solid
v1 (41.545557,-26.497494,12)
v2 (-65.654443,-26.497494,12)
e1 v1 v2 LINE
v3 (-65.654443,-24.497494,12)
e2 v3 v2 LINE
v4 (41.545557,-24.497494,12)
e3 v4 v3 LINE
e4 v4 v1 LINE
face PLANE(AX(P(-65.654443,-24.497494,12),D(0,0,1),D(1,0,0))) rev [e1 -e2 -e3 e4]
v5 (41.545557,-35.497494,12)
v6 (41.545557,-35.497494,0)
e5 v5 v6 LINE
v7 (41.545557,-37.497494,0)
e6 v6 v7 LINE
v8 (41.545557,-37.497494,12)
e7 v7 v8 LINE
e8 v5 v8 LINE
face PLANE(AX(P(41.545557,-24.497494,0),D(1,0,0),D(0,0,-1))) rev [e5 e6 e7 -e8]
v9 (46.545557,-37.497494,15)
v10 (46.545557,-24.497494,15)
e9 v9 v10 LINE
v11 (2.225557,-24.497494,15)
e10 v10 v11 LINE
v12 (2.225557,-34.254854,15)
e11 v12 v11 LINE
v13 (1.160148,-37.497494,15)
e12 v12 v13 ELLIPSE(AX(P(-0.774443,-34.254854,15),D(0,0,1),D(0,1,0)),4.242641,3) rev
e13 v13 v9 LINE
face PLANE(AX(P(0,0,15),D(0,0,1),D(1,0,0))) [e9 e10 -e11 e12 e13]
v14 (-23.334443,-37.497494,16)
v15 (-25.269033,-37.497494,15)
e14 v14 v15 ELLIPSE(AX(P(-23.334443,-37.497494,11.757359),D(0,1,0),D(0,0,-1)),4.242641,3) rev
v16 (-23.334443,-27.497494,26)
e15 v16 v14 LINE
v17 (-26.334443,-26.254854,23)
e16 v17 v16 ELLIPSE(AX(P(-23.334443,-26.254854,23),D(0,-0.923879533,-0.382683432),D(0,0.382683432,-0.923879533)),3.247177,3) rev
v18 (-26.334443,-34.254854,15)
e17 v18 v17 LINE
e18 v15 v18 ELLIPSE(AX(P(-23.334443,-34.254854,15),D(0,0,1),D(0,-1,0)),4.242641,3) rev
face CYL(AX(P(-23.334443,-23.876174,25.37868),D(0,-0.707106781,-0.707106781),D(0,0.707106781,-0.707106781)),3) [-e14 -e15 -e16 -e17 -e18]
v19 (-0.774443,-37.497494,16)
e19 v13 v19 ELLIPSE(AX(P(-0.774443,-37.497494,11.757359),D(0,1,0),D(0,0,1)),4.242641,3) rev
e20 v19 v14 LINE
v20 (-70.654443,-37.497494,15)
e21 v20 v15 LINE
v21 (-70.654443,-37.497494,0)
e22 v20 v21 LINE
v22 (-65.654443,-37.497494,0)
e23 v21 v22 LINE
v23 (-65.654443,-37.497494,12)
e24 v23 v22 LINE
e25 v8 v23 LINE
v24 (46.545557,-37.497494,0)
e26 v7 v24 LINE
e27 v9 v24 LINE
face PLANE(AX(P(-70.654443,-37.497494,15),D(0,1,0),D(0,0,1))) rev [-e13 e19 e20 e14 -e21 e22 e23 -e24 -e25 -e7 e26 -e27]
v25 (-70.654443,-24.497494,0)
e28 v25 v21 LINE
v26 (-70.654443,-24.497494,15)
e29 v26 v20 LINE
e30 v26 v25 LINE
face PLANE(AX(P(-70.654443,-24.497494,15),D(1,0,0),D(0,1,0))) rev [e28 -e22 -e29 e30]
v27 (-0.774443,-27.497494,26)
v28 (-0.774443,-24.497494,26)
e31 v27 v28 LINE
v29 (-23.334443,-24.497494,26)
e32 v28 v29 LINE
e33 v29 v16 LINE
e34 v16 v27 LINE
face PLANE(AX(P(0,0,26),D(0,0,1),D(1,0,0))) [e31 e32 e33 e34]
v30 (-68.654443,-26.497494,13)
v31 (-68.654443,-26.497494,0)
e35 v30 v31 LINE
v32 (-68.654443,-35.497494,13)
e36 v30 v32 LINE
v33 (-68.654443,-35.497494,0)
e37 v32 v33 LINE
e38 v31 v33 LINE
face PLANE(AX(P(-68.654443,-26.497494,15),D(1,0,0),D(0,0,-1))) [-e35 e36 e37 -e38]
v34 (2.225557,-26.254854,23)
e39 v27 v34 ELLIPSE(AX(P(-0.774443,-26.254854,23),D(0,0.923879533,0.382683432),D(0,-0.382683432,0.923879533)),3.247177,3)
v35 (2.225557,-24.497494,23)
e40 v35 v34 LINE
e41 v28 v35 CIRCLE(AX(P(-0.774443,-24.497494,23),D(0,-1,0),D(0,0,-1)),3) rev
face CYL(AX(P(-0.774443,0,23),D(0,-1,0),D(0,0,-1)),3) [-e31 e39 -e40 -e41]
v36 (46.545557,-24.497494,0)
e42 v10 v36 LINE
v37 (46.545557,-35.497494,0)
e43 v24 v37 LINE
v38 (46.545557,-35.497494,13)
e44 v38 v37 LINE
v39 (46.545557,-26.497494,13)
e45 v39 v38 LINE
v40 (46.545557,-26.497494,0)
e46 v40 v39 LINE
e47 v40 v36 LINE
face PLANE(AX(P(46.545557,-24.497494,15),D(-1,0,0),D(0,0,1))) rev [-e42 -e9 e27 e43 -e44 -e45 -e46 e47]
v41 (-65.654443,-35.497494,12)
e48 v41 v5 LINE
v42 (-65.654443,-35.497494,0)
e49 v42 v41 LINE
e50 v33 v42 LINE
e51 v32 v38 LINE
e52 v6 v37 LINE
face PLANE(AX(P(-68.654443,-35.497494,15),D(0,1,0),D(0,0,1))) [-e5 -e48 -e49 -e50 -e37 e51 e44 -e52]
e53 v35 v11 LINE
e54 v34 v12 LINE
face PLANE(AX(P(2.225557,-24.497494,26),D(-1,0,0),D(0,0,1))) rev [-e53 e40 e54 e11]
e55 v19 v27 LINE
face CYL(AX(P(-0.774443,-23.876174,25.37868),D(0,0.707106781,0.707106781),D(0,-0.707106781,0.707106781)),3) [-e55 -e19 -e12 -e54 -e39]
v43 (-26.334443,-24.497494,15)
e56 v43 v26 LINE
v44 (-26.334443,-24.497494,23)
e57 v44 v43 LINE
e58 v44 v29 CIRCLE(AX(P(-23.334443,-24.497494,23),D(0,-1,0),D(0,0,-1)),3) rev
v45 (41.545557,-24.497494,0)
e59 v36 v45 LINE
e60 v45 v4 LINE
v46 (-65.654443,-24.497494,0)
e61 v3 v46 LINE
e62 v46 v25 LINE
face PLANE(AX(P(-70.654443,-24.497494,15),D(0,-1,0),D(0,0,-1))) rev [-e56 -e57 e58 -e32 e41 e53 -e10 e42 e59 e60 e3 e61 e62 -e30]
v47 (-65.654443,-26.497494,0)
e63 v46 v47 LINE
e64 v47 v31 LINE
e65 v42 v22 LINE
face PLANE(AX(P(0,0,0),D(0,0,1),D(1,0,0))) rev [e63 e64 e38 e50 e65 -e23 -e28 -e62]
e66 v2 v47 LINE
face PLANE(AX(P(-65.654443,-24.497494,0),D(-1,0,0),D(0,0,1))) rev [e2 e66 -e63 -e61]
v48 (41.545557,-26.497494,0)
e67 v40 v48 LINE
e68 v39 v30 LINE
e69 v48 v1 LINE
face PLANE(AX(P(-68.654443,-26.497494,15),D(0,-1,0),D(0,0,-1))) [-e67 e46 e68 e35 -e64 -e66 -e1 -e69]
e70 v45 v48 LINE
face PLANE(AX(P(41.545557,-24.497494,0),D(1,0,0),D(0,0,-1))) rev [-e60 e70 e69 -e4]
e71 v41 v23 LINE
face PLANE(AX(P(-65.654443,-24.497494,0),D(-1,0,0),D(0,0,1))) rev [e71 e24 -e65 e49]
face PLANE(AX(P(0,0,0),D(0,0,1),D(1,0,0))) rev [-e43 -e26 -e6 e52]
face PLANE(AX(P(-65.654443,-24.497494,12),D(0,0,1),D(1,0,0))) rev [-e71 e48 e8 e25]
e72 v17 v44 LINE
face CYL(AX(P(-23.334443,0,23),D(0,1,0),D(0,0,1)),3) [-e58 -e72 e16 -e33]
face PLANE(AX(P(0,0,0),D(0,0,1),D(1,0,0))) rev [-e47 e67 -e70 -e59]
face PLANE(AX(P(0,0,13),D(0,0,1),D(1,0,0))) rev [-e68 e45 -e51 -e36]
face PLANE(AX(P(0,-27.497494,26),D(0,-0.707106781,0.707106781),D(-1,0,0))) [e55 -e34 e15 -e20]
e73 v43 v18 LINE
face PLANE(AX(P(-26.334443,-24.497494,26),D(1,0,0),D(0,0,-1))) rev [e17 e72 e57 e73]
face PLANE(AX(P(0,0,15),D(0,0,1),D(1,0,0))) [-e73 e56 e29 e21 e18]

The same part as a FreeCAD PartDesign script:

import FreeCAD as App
import Part
import Sketcher


def edges_at(feature, points):
    """Names of the edges that pass closest to the given points."""
    edges = feature.Shape.Edges
    near = lambda p: min(range(len(edges)), key=lambda i: edges[i].distToShape(Part.Vertex(*p))[0])
    return sorted({f"Edge{near(p) + 1}" for p in points})


def add_polygon(sketch, points):
    """Adds a closed chain of lines whose ends are joined by coincident constraints."""
    first, n = sketch.GeometryCount, len(points)
    for a, b in zip(points, points[1:] + points[:1]):
        sketch.addGeometry(Part.LineSegment(App.Vector(*a, 0), App.Vector(*b, 0)), False)
    for i in range(n):
        sketch.addConstraint(Sketcher.Constraint("Coincident", first + i, 2, first + (i + 1) % n, 1))

doc = App.newDocument("Part")
body = doc.addObject("PartDesign::Body", "Body")

# Sketch on XY plane
sketch1 = body.newObject("Sketcher::SketchObject", "Sketch")
sketch1.AttachmentSupport = (doc.getObject("XY_Plane"), [""])
sketch1.MapMode = "FlatFace"
add_polygon(sketch1, [(-70.654443, -24.497494), (-70.654443, -37.497494), (46.545557, -37.497494), (46.545557, -24.497494)])  # lines 0-3
add_polygon(sketch1, [(44.545557, -35.497494), (-68.654443, -35.497494), (-68.654443, -26.497494), (44.545557, -26.497494)])  # lines 4-7
sketch1.addConstraint(Sketcher.Constraint("Vertical", 0))
sketch1.addConstraint(Sketcher.Constraint("Horizontal", 1))
sketch1.addConstraint(Sketcher.Constraint("Vertical", 2))
sketch1.addConstraint(Sketcher.Constraint("Horizontal", 3))
sketch1.addConstraint(Sketcher.Constraint("Horizontal", 4))
sketch1.addConstraint(Sketcher.Constraint("Vertical", 5))
sketch1.addConstraint(Sketcher.Constraint("Horizontal", 6))
sketch1.addConstraint(Sketcher.Constraint("Vertical", 7))
sketch1.addConstraint(Sketcher.Constraint("DistanceY", 0, 2, 0, 1, 13.0))
sketch1.addConstraint(Sketcher.Constraint("DistanceY", 5, 1, 5, 2, 9.0))
sketch1.addConstraint(Sketcher.Constraint("DistanceX", 1, 1, 1, 2, 117.2))
sketch1.addConstraint(Sketcher.Constraint("DistanceX", 4, 2, 4, 1, 113.2))
sketch1.addConstraint(Sketcher.Constraint("DistanceX", 0, 2, 4, 2, 2.0))
sketch1.addConstraint(Sketcher.Constraint("DistanceY", 0, 2, 4, 2, 2.0))
sketch1.addConstraint(Sketcher.Constraint("DistanceX", 0, 2, -1, 1, 70.654443))
sketch1.addConstraint(Sketcher.Constraint("DistanceY", 0, 2, -1, 1, 37.497494))
pad1 = body.newObject("PartDesign::Pad", "Pad")
pad1.Profile = sketch1
pad1.Length = 15

# Sketch on XY plane
sketch2 = body.newObject("Sketcher::SketchObject", "Sketch001")
sketch2.AttachmentSupport = (doc.getObject("XY_Plane"), [""])
sketch2.MapMode = "FlatFace"
sketch2.AttachmentOffset = App.Placement(App.Vector(0, 0, 15), App.Rotation())
add_polygon(sketch2, [(-70.654443, -24.497494), (-70.654443, -37.497494), (46.545557, -37.497494), (46.545557, -24.497494)])  # lines 0-3
sketch2.addConstraint(Sketcher.Constraint("Vertical", 0))
sketch2.addConstraint(Sketcher.Constraint("Horizontal", 1))
sketch2.addConstraint(Sketcher.Constraint("Vertical", 2))
sketch2.addConstraint(Sketcher.Constraint("Horizontal", 3))
sketch2.addConstraint(Sketcher.Constraint("DistanceY", 0, 2, 0, 1, 13.0))
sketch2.addConstraint(Sketcher.Constraint("DistanceX", 1, 1, 1, 2, 117.2))
sketch2.addConstraint(Sketcher.Constraint("DistanceX", 0, 2, -1, 1, 70.654443))
sketch2.addConstraint(Sketcher.Constraint("DistanceY", 0, 2, -1, 1, 37.497494))
pad2 = body.newObject("PartDesign::Pad", "Pad001")
pad2.Profile = sketch2
pad2.Length = 2
pad2.Reversed = True

# Sketch on XZ plane
sketch3 = body.newObject("Sketcher::SketchObject", "Sketch002")
sketch3.AttachmentSupport = (doc.getObject("XZ_Plane"), [""])
sketch3.MapMode = "FlatFace"
sketch3.AttachmentOffset = App.Placement(App.Vector(0, 0, 37.497494), App.Rotation())
add_polygon(sketch3, [(-65.654443, 12), (-65.654443, 0), (41.545557, 0), (41.545557, 12)])  # lines 0-3
sketch3.addConstraint(Sketcher.Constraint("Vertical", 0))
sketch3.addConstraint(Sketcher.Constraint("Horizontal", 1))
sketch3.addConstraint(Sketcher.Constraint("Vertical", 2))
sketch3.addConstraint(Sketcher.Constraint("Horizontal", 3))
sketch3.addConstraint(Sketcher.Constraint("PointOnObject", 0, 2, -1))
sketch3.addConstraint(Sketcher.Constraint("DistanceY", 0, 2, 0, 1, 12.0))
sketch3.addConstraint(Sketcher.Constraint("DistanceX", 1, 1, 1, 2, 107.2))
sketch3.addConstraint(Sketcher.Constraint("DistanceX", 0, 2, -1, 1, 65.654443))
pocket1 = body.newObject("PartDesign::Pocket", "Pocket")
pocket1.Profile = sketch3
pocket1.Type = "ThroughAll"

# Sketch on YZ plane
sketch4 = body.newObject("Sketcher::SketchObject", "Sketch003")
sketch4.AttachmentSupport = (doc.getObject("YZ_Plane"), [""])
sketch4.MapMode = "FlatFace"
sketch4.AttachmentOffset = App.Placement(App.Vector(0, 0, 46.545557), App.Rotation())
add_polygon(sketch4, [(-26.497494, 13), (-35.497494, 13), (-35.497494, 0), (-26.497494, 0)])  # lines 0-3
sketch4.addConstraint(Sketcher.Constraint("Horizontal", 0))
sketch4.addConstraint(Sketcher.Constraint("Vertical", 1))
sketch4.addConstraint(Sketcher.Constraint("Horizontal", 2))
sketch4.addConstraint(Sketcher.Constraint("Vertical", 3))
sketch4.addConstraint(Sketcher.Constraint("PointOnObject", 1, 2, -1))
sketch4.addConstraint(Sketcher.Constraint("DistanceX", 0, 2, 0, 1, 9.0))
sketch4.addConstraint(Sketcher.Constraint("DistanceY", 1, 2, 1, 1, 13.0))
sketch4.addConstraint(Sketcher.Constraint("DistanceX", 0, 2, -1, 1, 35.497494))
pocket2 = body.newObject("PartDesign::Pocket", "Pocket001")
pocket2.Profile = sketch4
pocket2.Type = "UpToFirst"

# Sketch on XY plane
sketch5 = body.newObject("Sketcher::SketchObject", "Sketch004")
sketch5.AttachmentSupport = (doc.getObject("XY_Plane"), [""])
sketch5.MapMode = "FlatFace"
sketch5.AttachmentOffset = App.Placement(App.Vector(0, 0, 15), App.Rotation())
add_polygon(sketch5, [(-26.334443, -24.497494), (-26.334443, -37.497494), (2.225557, -37.497494), (2.225557, -24.497494)])  # lines 0-3
sketch5.addConstraint(Sketcher.Constraint("Vertical", 0))
sketch5.addConstraint(Sketcher.Constraint("Horizontal", 1))
sketch5.addConstraint(Sketcher.Constraint("Vertical", 2))
sketch5.addConstraint(Sketcher.Constraint("Horizontal", 3))
sketch5.addConstraint(Sketcher.Constraint("DistanceY", 0, 2, 0, 1, 13.0))
sketch5.addConstraint(Sketcher.Constraint("DistanceX", 1, 1, 1, 2, 28.56))
sketch5.addConstraint(Sketcher.Constraint("DistanceX", 0, 2, -1, 1, 26.334443))
sketch5.addConstraint(Sketcher.Constraint("DistanceY", 0, 2, -1, 1, 37.497494))
pad3 = body.newObject("PartDesign::Pad", "Pad002")
pad3.Profile = sketch5
pad3.Length = 11
doc.recompute()

chamfer = body.newObject("PartDesign::Chamfer", "Chamfer")
chamfer.Base = (pad3, edges_at(pad3, [(-12.054, -37.497, 26)]))
chamfer.Size = 10
doc.recompute()

fillet = body.newObject("PartDesign::Fillet", "Fillet")
fillet.Base = (chamfer, edges_at(chamfer, [(-26.334, -25.997, 26), (-26.334, -32.497, 21)]))
fillet.Radius = 3
doc.recompute()

fillet2 = body.newObject("PartDesign::Fillet", "Fillet001")
fillet2.Base = (fillet, edges_at(fillet, [(2.226, -25.997, 26), (2.226, -32.497, 21)]))
fillet2.Radius = 3

doc.recompute()
